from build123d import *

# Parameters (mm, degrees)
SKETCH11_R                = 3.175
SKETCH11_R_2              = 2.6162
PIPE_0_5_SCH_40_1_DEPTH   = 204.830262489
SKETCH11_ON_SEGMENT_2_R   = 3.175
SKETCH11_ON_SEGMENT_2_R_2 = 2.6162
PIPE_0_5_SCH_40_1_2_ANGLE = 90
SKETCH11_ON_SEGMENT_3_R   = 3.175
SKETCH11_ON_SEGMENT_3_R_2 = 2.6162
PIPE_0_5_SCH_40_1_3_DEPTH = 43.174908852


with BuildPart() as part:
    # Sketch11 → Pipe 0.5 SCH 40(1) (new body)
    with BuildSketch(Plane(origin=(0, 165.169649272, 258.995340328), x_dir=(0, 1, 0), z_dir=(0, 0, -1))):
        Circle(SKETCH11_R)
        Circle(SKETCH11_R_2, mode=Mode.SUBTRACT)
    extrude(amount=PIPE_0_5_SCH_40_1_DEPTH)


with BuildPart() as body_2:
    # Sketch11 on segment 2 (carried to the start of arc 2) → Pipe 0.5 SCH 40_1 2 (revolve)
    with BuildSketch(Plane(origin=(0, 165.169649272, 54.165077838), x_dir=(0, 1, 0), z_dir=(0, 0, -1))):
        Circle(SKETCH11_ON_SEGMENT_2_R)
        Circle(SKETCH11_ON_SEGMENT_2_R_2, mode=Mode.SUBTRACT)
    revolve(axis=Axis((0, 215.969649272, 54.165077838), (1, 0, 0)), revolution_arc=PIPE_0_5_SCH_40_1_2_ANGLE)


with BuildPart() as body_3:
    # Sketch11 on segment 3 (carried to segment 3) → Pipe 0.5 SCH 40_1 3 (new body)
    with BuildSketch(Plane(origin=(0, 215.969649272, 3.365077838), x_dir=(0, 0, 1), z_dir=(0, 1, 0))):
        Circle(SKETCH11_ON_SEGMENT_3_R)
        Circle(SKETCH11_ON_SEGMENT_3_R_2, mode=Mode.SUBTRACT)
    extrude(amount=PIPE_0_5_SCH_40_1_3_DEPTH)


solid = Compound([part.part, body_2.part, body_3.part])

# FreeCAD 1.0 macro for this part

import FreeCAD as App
import Part
import Sketcher
from FreeCAD import Vector
Q = App.Units.Quantity

doc = App.newDocument("Part")
body = doc.addObject("PartDesign::Body", "Body")

# Sketch on XY plane
sketch1 = body.newObject("Sketcher::SketchObject", "Sketch")
sketch1.AttachmentSupport = (doc.getObject("XY_Plane"), [""])
sketch1.MapMode = "FlatFace"
sketch1.AttachmentOffset = App.Placement(Vector(0, 0, 258.99534), App.Rotation())
sketch1.addGeometry(Part.Circle(Vector(0, 165.2, 0), Vector(0, 0, 1), 3.2), False)
sketch1.addGeometry(Part.Circle(Vector(0, 165.2, 0), Vector(0, 0, 1), 2.6), False)
sketch1.addConstraint(Sketcher.Constraint("Coincident", 1, 3, 0, 3))
sketch1.addConstraint(Sketcher.Constraint("PointOnObject", 0, 3, -2))
sketch1.addConstraint(Sketcher.Constraint("Diameter", 0, Q("0.25 in")))
sketch1.addConstraint(Sketcher.Constraint("Diameter", 1, Q("0.206 in")))
sketch1.addConstraint(Sketcher.Constraint("DistanceY", -1, 1, 0, 3, Q("165.169649 mm")))
pad1 = body.newObject("PartDesign::Pad", "Pad")
pad1.Profile = sketch1
pad1.Length = 204.830262
pad1.Reversed = True
body2 = doc.addObject("PartDesign::Body", "Body001")

# Sketch on XY plane
sketch2 = body2.newObject("Sketcher::SketchObject", "Sketch001")
sketch2.AttachmentSupport = (doc.getObject("XY_Plane001"), [""])
sketch2.MapMode = "FlatFace"
sketch2.AttachmentOffset = App.Placement(Vector(0, 0, 54.165078), App.Rotation())
sketch2.addGeometry(Part.Circle(Vector(0, 165.2, 0), Vector(0, 0, 1), 3.2), False)
sketch2.addGeometry(Part.Circle(Vector(0, 165.2, 0), Vector(0, 0, 1), 2.6), False)
sketch2.addGeometry(Part.LineSegment(Vector(0, 216, 0), Vector(10, 216, 0)), True)  # axis
sketch2.addConstraint(Sketcher.Constraint("Horizontal", 2))
sketch2.addConstraint(Sketcher.Constraint("Coincident", 1, 3, 0, 3))
sketch2.addConstraint(Sketcher.Constraint("PointOnObject", 0, 3, -2))
sketch2.addConstraint(Sketcher.Constraint("PointOnObject", 2, 1, -2))
sketch2.addConstraint(Sketcher.Constraint("Diameter", 0, Q("0.25 in")))
sketch2.addConstraint(Sketcher.Constraint("Diameter", 1, Q("0.206 in")))
sketch2.addConstraint(Sketcher.Constraint("DistanceY", 0, 3, 2, 1, Q("2 in")))
sketch2.addConstraint(Sketcher.Constraint("DistanceX", 2, 1, 2, 2, Q("10 mm")))
sketch2.addConstraint(Sketcher.Constraint("DistanceY", -1, 1, 0, 3, Q("165.169649 mm")))
revolution = body2.newObject("PartDesign::Revolution", "Revolution")
revolution.Profile = sketch2
revolution.ReferenceAxis = (sketch2, ["Axis0"])
revolution.Angle = 90
body3 = doc.addObject("PartDesign::Body", "Body002")

# Sketch on XZ plane
sketch3 = body3.newObject("Sketcher::SketchObject", "Sketch002")
sketch3.AttachmentSupport = (doc.getObject("XZ_Plane002"), [""])
sketch3.MapMode = "FlatFace"
sketch3.AttachmentOffset = App.Placement(Vector(0, 0, -215.969649), App.Rotation())
sketch3.addGeometry(Part.Circle(Vector(0, 3.4, 0), Vector(0, 0, 1), 3.2), False)
sketch3.addGeometry(Part.Circle(Vector(0, 3.4, 0), Vector(0, 0, 1), 2.6), False)
sketch3.addConstraint(Sketcher.Constraint("Coincident", 1, 3, 0, 3))
sketch3.addConstraint(Sketcher.Constraint("PointOnObject", 0, 3, -2))
sketch3.addConstraint(Sketcher.Constraint("Diameter", 0, Q("0.25 in")))
sketch3.addConstraint(Sketcher.Constraint("Diameter", 1, Q("0.206 in")))
sketch3.addConstraint(Sketcher.Constraint("DistanceY", -1, 1, 0, 3, Q("3.365078 mm")))
pad2 = body3.newObject("PartDesign::Pad", "Pad001")
pad2.Profile = sketch3
pad2.Length = 43.174909
pad2.Reversed = True

doc.recompute()
